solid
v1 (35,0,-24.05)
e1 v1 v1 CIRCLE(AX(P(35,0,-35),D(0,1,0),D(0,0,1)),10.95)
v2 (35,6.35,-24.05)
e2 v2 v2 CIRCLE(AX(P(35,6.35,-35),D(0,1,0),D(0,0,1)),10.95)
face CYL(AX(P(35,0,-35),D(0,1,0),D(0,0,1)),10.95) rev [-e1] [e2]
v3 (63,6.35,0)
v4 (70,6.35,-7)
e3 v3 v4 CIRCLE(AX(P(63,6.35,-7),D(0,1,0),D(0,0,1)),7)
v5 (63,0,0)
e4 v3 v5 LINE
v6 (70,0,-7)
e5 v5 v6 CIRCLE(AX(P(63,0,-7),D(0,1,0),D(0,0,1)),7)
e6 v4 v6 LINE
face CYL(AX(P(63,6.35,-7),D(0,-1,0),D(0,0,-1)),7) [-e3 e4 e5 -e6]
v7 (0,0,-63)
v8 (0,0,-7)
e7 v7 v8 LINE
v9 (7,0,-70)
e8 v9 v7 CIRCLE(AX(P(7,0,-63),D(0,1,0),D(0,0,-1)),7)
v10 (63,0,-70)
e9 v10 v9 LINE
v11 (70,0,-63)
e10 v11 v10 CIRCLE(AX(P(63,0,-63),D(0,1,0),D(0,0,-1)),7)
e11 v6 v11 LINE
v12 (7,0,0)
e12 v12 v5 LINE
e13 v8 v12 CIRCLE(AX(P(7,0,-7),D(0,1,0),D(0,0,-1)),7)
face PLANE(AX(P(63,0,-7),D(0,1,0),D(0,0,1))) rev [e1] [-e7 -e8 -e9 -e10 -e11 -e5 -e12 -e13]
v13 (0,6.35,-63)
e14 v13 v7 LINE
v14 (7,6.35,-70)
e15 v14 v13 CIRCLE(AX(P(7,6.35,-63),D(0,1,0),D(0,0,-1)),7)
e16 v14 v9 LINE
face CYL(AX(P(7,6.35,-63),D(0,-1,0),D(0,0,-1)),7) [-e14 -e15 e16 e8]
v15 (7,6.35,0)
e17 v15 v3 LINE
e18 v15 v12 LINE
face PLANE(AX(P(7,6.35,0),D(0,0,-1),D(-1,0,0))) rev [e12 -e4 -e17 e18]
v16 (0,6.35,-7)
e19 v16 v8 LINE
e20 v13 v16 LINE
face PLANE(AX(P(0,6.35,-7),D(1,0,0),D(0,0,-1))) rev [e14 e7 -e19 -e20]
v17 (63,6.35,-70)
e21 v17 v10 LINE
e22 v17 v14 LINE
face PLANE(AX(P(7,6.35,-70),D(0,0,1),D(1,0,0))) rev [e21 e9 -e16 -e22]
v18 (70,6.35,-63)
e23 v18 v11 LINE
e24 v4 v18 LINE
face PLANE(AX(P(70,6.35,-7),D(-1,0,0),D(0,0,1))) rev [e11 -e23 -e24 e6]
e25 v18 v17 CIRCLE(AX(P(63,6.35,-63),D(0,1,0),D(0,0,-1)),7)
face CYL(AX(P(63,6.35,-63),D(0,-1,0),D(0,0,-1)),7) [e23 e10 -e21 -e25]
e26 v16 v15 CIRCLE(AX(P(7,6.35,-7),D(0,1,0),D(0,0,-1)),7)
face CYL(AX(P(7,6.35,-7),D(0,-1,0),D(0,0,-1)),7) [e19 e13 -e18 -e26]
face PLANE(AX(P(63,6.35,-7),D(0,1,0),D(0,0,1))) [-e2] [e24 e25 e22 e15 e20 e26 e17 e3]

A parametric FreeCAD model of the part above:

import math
import FreeCAD as App
import Part
import Sketcher

doc = App.newDocument("Part")
body = doc.addObject("PartDesign::Body", "Body")

sketch1 = body.newObject("Sketcher::SketchObject", "Sketch")
sketch1.AttachmentSupport = (doc.getObject("XZ_Plane"), [""])
sketch1.MapMode = "FlatFace"
sketch1.addGeometry(Part.LineSegment(App.Vector(7, 0, 0), App.Vector(63, 0, 0)), False)
sketch1.addGeometry(Part.ArcOfCircle(Part.Circle(App.Vector(63, -7, 0), App.Vector(0, 0, 1), 7), math.radians(0), math.radians(90)), False)
sketch1.addGeometry(Part.LineSegment(App.Vector(70, -7, 0), App.Vector(70, -63, 0)), False)
sketch1.addGeometry(Part.ArcOfCircle(Part.Circle(App.Vector(63, -63, 0), App.Vector(0, 0, 1), 7), math.radians(-90), math.radians(0)), False)
sketch1.addGeometry(Part.LineSegment(App.Vector(63, -70, 0), App.Vector(7, -70, 0)), False)
sketch1.addGeometry(Part.ArcOfCircle(Part.Circle(App.Vector(7, -63, 0), App.Vector(0, 0, 1), 7), math.radians(-180), math.radians(-90)), False)
sketch1.addGeometry(Part.LineSegment(App.Vector(0, -63, 0), App.Vector(0, -7, 0)), False)
sketch1.addGeometry(Part.ArcOfCircle(Part.Circle(App.Vector(7, -7, 0), App.Vector(0, 0, 1), 7), math.radians(90), math.radians(180)), False)
sketch1.addConstraint(Sketcher.Constraint("Tangent", 0, 2, 1, 2))
sketch1.addConstraint(Sketcher.Constraint("Tangent", 1, 1, 2, 1))
sketch1.addConstraint(Sketcher.Constraint("Tangent", 2, 2, 3, 2))
sketch1.addConstraint(Sketcher.Constraint("Tangent", 3, 1, 4, 1))
sketch1.addConstraint(Sketcher.Constraint("Tangent", 4, 2, 5, 2))
sketch1.addConstraint(Sketcher.Constraint("Tangent", 5, 1, 6, 1))
sketch1.addConstraint(Sketcher.Constraint("Tangent", 6, 2, 7, 2))
sketch1.addConstraint(Sketcher.Constraint("Tangent", 7, 1, 0, 1))
sketch1.addConstraint(Sketcher.Constraint("Horizontal", 0))
sketch1.addConstraint(Sketcher.Constraint("Vertical", 2))
sketch1.addConstraint(Sketcher.Constraint("Horizontal", 4))
sketch1.addConstraint(Sketcher.Constraint("Vertical", 6))
sketch1.addConstraint(Sketcher.Constraint("Equal", 1, 3))
sketch1.addConstraint(Sketcher.Constraint("Equal", 3, 5))
sketch1.addConstraint(Sketcher.Constraint("Equal", 5, 7))
sketch1.addConstraint(Sketcher.Constraint("PointOnObject", 0, 2, -1))
sketch1.addConstraint(Sketcher.Constraint("PointOnObject", 5, 1, -2))
sketch1.addConstraint(Sketcher.Constraint("Equal", 4, 2))
sketch1.addConstraint(Sketcher.Constraint("Radius", 1, 7.0))
sketch1.addConstraint(Sketcher.Constraint("DistanceX", 0, 1, 0, 2, 56.0))
pad1 = body.newObject("PartDesign::Pad", "Pad")
pad1.Profile = sketch1
pad1.Length = 6.35
pad1.Reversed = True

sketch2 = body.newObject("Sketcher::SketchObject", "Sketch001")
sketch2.AttachmentSupport = (doc.getObject("XZ_Plane"), [""])
sketch2.MapMode = "FlatFace"
sketch2.AttachmentOffset = App.Placement(App.Vector(0, 0, -6.35), App.Rotation())
sketch2.addGeometry(Part.Circle(App.Vector(35, -35, 0), App.Vector(0, 0, 1), 11), False)
sketch2.addConstraint(Sketcher.Constraint("Diameter", 0, 21.9))
sketch2.addConstraint(Sketcher.Constraint("DistanceX", -1, 1, 0, 3, 35.0))
sketch2.addConstraint(Sketcher.Constraint("DistanceY", 0, 3, -1, 1, 35.0))
pocket1 = body.newObject("PartDesign::Pocket", "Pocket")
pocket1.Profile = sketch2
pocket1.Length = 6.35
pocket1.Reversed = True

doc.recompute()
